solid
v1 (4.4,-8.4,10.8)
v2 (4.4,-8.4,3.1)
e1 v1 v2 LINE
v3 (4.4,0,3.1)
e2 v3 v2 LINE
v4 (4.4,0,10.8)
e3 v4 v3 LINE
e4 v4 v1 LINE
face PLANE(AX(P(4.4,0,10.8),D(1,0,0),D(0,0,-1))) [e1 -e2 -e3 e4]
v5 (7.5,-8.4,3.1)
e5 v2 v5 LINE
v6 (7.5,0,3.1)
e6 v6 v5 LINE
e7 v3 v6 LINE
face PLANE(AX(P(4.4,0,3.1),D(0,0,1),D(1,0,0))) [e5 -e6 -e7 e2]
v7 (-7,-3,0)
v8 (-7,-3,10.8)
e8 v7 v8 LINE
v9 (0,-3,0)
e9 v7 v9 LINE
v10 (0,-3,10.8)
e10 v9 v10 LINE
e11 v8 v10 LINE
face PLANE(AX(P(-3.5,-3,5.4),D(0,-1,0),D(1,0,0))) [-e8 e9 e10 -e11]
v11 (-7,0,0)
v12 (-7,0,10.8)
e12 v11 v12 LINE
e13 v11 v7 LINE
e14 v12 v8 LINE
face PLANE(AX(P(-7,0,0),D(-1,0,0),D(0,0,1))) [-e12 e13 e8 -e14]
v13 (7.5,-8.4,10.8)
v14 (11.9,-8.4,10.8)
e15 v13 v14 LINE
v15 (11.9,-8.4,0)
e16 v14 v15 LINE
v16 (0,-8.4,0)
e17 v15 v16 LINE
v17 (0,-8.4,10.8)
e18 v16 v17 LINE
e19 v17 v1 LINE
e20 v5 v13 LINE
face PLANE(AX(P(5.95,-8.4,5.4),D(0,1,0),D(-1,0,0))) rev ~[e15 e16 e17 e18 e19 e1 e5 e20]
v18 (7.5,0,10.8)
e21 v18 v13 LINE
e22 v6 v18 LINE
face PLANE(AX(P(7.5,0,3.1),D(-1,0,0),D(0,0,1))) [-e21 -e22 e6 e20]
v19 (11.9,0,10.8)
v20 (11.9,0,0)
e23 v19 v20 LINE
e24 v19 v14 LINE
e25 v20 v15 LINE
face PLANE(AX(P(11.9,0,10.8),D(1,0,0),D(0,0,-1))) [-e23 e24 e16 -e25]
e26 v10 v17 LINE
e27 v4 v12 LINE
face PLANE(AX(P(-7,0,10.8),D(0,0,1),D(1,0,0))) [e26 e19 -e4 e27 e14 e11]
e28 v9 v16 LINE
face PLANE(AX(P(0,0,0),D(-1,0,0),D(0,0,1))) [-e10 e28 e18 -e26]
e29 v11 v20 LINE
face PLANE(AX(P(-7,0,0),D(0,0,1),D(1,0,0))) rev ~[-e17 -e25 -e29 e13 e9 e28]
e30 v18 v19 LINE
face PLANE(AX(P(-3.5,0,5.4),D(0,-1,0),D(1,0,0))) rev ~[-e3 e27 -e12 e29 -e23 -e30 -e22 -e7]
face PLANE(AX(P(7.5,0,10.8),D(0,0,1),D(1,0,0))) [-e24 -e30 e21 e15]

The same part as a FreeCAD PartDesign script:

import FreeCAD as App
import Part
import Sketcher
from FreeCAD import Vector
Q = App.Units.Quantity


def add_polygon(sketch, points):
    """Adds a closed chain of lines whose ends are joined by coincident constraints."""
    first, n = sketch.GeometryCount, len(points)
    for a, b in zip(points, points[1:] + points[:1]):
        sketch.addGeometry(Part.LineSegment(App.Vector(*a, 0), App.Vector(*b, 0)), False)
    for i in range(n):
        sketch.addConstraint(Sketcher.Constraint("Coincident", first + i, 2, first + (i + 1) % n, 1))

doc = App.newDocument("Part")
body = doc.addObject("PartDesign::Body", "Body")

# Sketch on XZ plane
sketch1 = body.newObject("Sketcher::SketchObject", "Sketch")
sketch1.AttachmentSupport = (doc.getObject("XZ_Plane"), [""])
sketch1.MapMode = "FlatFace"
add_polygon(sketch1, [(0, 10.8), (0, 0), (11.9, 0), (11.9, 10.8), (7.5, 10.8), (7.5, 3.1), (4.4, 3.1), (4.4, 10.8)])  # lines 0-7
sketch1.addConstraint([
    Sketcher.Constraint("Vertical", 0),
    Sketcher.Constraint("Horizontal", 1),
    Sketcher.Constraint("Vertical", 2),
    Sketcher.Constraint("Horizontal", 3),
    Sketcher.Constraint("Vertical", 4),
    Sketcher.Constraint("Horizontal", 5),
    Sketcher.Constraint("Vertical", 6),
    Sketcher.Constraint("Horizontal", 7),
    Sketcher.Constraint("Coincident", 0, 2, -1, 1),
    Sketcher.Constraint("Horizontal", 3, 2, 6, 2),
    Sketcher.Constraint("Equal", 3, 7),
    Sketcher.Constraint("DistanceX", 1, 1, 1, 2, Q("11.9 mm")),
    Sketcher.Constraint("DistanceX", 3, 2, 3, 1, Q("4.4 mm")),
    Sketcher.Constraint("DistanceY", 0, 2, 0, 1, Q("10.8 mm")),
    Sketcher.Constraint("DistanceY", 4, 2, 4, 1, Q("7.7 mm")),
])
pad1 = body.newObject("PartDesign::Pad", "Pad")
pad1.Profile = sketch1
pad1.Length = 8.4

# Sketch on XZ plane
sketch2 = body.newObject("Sketcher::SketchObject", "Sketch001")
sketch2.AttachmentSupport = (doc.getObject("XZ_Plane"), [""])
sketch2.MapMode = "FlatFace"
add_polygon(sketch2, [(-7, 11), (-7, 0), (0, 0), (0, 11)])  # lines 0-3
sketch2.addConstraint([
    Sketcher.Constraint("Vertical", 0),
    Sketcher.Constraint("Horizontal", 1),
    Sketcher.Constraint("Vertical", 2),
    Sketcher.Constraint("Horizontal", 3),
    Sketcher.Constraint("Coincident", 1, 2, -1, 1),
    Sketcher.Constraint("DistanceX", 1, 1, 1, 2, Q("7 mm")),
    Sketcher.Constraint("DistanceY", 0, 2, 0, 1, Q("10.8 mm")),
])
pad2 = body.newObject("PartDesign::Pad", "Pad001")
pad2.Profile = sketch2
pad2.Length = 3

doc.recompute()
